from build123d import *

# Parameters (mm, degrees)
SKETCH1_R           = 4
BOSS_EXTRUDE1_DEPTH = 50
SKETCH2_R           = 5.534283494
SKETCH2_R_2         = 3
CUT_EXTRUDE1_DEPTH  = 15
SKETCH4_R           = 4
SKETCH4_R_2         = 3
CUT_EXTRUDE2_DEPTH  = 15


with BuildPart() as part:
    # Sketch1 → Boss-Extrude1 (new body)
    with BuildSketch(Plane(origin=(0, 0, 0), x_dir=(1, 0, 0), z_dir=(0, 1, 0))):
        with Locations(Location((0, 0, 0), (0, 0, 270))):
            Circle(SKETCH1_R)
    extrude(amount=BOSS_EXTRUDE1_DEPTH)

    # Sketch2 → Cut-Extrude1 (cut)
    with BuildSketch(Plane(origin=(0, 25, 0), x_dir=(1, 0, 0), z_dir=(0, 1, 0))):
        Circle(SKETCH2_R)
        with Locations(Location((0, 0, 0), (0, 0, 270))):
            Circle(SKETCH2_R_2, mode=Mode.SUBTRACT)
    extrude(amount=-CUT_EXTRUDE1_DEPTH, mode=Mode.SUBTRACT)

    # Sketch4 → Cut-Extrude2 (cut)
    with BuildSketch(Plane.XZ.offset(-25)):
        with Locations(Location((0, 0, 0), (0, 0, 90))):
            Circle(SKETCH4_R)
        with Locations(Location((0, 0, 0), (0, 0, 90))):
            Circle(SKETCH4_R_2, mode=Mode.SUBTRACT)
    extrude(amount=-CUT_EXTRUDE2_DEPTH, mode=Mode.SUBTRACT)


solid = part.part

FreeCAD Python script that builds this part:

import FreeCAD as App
import Part
import Sketcher
from FreeCAD import Vector

doc = App.newDocument("Part")
body = doc.addObject("PartDesign::Body", "Body")

sketch1 = body.newObject("Sketcher::SketchObject", "Sketch")
sketch1.AttachmentSupport = (doc.getObject("XZ_Plane"), [""])
sketch1.MapMode = "FlatFace"
sketch1.addGeometry(Part.Circle(Vector(0, 0, 0), Vector(0, 0, 1), 4), False)
sketch1.addConstraint([
    Sketcher.Constraint("Coincident", 0, 3, -1, 1),
    Sketcher.Constraint("Diameter", 0, 8.0),
])
pad1 = body.newObject("PartDesign::Pad", "Pad")
pad1.Profile = sketch1
pad1.Length = 50
pad1.Reversed = True

sketch2 = body.newObject("Sketcher::SketchObject", "Sketch001")
sketch2.AttachmentSupport = (doc.getObject("XZ_Plane"), [""])
sketch2.MapMode = "FlatFace"
sketch2.AttachmentOffset = App.Placement(Vector(0, 0, -25), App.Rotation())
sketch2.addGeometry([
    Part.Circle(Vector(0, 0, 0), Vector(0, 0, 1), 5.5),
    Part.Circle(Vector(0, 0, 0), Vector(0, 0, 1), 3),
], False)
sketch2.addConstraint([
    Sketcher.Constraint("Coincident", 0, 3, -1, 1),
    Sketcher.Constraint("Coincident", 1, 3, -1, 1),
    Sketcher.Constraint("Diameter", 1, 6.0),
    Sketcher.Constraint("Diameter", 0, 11.068567),
])
pocket1 = body.newObject("PartDesign::Pocket", "Pocket")
pocket1.Profile = sketch2
pocket1.Length = 15
pocket1.Reversed = True

sketch3 = body.newObject("Sketcher::SketchObject", "Sketch002")
sketch3.AttachmentSupport = (doc.getObject("XZ_Plane"), [""])
sketch3.MapMode = "FlatFace"
sketch3.AttachmentOffset = App.Placement(Vector(0, 0, -25), App.Rotation())
sketch3.addGeometry([
    Part.Circle(Vector(0, 0, 0), Vector(0, 0, 1), 4),
    Part.Circle(Vector(0, 0, 0), Vector(0, 0, 1), 3),
], False)
sketch3.addConstraint([
    Sketcher.Constraint("Coincident", 0, 3, -1, 1),
    Sketcher.Constraint("Coincident", 1, 3, -1, 1),
    Sketcher.Constraint("Diameter", 0, 8.0),
    Sketcher.Constraint("Diameter", 1, 6.0),
])
pocket2 = body.newObject("PartDesign::Pocket", "Pocket001")
pocket2.Profile = sketch3
pocket2.Length = 15

doc.recompute()
